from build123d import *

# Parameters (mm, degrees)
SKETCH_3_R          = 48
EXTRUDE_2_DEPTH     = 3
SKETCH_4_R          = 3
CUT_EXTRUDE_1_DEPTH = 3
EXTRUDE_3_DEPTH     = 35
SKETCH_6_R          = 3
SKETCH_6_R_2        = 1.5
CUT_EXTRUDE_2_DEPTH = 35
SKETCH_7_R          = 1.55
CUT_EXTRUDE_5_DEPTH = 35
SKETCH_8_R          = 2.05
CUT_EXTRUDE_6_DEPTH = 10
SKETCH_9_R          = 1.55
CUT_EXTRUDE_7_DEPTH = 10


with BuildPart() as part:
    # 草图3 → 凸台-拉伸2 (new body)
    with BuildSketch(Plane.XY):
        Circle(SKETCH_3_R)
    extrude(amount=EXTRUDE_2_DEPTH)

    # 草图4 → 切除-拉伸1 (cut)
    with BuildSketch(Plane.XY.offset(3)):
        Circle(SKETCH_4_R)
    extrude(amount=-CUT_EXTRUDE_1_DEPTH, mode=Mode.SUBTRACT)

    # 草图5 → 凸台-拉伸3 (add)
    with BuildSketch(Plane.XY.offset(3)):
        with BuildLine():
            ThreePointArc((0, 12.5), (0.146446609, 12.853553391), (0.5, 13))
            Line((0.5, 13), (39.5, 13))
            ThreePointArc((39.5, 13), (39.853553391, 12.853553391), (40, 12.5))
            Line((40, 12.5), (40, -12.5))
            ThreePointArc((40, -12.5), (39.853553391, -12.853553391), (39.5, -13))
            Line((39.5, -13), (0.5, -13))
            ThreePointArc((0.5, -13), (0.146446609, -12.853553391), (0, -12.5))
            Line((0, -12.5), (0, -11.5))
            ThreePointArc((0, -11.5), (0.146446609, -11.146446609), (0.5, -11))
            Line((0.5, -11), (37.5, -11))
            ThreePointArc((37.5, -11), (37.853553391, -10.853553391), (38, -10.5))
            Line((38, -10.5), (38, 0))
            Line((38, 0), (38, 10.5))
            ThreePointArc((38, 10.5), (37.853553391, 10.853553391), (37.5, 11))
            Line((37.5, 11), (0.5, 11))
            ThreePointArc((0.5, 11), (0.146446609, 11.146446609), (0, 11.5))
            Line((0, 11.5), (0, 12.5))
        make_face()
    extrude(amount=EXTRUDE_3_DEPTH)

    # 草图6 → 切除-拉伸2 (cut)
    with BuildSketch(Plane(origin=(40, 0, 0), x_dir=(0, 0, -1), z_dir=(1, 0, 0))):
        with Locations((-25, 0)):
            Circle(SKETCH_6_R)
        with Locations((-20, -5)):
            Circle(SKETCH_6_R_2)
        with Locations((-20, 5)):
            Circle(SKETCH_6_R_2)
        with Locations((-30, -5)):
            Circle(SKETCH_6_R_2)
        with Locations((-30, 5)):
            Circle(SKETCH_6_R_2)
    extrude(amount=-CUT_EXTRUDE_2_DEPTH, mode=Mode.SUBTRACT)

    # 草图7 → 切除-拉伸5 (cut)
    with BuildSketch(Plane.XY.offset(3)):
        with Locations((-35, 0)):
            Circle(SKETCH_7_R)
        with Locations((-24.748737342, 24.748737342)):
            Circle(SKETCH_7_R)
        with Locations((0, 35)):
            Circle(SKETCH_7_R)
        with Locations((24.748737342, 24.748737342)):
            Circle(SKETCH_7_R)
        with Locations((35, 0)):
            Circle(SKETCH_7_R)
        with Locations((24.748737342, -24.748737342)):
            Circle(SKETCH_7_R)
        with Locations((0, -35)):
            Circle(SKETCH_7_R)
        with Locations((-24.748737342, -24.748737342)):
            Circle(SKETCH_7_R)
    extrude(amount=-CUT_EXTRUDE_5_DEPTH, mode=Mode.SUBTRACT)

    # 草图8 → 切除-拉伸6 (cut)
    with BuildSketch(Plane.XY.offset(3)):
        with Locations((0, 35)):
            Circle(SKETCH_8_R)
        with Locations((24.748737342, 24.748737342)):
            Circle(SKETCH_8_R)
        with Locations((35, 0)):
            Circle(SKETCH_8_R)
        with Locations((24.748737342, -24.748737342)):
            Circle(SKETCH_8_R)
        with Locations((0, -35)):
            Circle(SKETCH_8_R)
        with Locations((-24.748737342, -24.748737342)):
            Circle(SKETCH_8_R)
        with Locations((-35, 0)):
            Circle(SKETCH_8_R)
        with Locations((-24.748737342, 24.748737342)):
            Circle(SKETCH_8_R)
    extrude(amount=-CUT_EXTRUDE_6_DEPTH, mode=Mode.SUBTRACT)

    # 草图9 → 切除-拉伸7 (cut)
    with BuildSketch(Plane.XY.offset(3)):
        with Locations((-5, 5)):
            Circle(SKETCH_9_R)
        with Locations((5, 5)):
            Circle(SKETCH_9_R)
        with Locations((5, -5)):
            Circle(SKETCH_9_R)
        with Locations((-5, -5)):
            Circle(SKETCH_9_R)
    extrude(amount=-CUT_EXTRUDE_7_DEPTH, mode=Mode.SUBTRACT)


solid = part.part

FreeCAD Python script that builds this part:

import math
import FreeCAD as App
import Part
import Sketcher
Q = App.Units.Quantity

doc = App.newDocument("Part")
params = doc.addObject("Spreadsheet::Sheet", "Params")
for row, (alias, value) in enumerate([
    ("sketch1_diameter", "96 mm"),
    ("pad1_length", "3 mm"),
    ("sketch2_diameter", "6 mm"),
    ("pocket1_length", "3 mm"),
    ("sketch3_radius", "0.5 mm"),
    ("sketch3_width", "37 mm"),
    ("sketch3_width2", "39 mm"),
    ("sketch3_height", "1 mm"),
    ("sketch3_height2", "21 mm"),
    ("pad2_length", "35 mm"),
    ("sketch4_diameter", "6 mm"),
    ("sketch4_diameter2", "3 mm"),
    ("pocket2_length", "35 mm"),
    ("sketch5_diameter", "3.1 mm"),
    ("pocket3_length", "35 mm"),
    ("sketch6_diameter", "4.1 mm"),
    ("pocket4_length", "10 mm"),
    ("sketch7_diameter", "3.1 mm"),
    ("pocket5_length", "10 mm"),
], start=1):
    params.set(f"A{row}", alias)
    params.set(f"B{row}", "=" + value)
    params.setAlias(f"B{row}", alias)

body = doc.addObject("PartDesign::Body", "Body")

# Sketch on XY plane
sketch1 = body.newObject("Sketcher::SketchObject", "Sketch")
sketch1.AttachmentSupport = (doc.getObject("XY_Plane"), [""])
sketch1.MapMode = "FlatFace"
sketch1.addGeometry(Part.Circle(App.Vector(0, 0, 0), App.Vector(0, 0, 1), 48), False)
sketch1.addConstraint(Sketcher.Constraint("Coincident", 0, 3, -1, 1))
sketch1.addConstraint(Sketcher.Constraint("Diameter", 0, Q("96 mm")))
sketch1.setExpression("Constraints[1]", "Params.sketch1_diameter")
pad1 = body.newObject("PartDesign::Pad", "Pad")
pad1.Profile = sketch1
pad1.setExpression("Length", "Params.pad1_length")

# Sketch on XY plane
sketch2 = body.newObject("Sketcher::SketchObject", "Sketch001")
sketch2.AttachmentSupport = (doc.getObject("XY_Plane"), [""])
sketch2.MapMode = "FlatFace"
sketch2.AttachmentOffset = App.Placement(App.Vector(0, 0, 3), App.Rotation())
sketch2.addGeometry(Part.Circle(App.Vector(0, 0, 0), App.Vector(0, 0, 1), 3), False)
sketch2.addConstraint(Sketcher.Constraint("Coincident", 0, 3, -1, 1))
sketch2.addConstraint(Sketcher.Constraint("Diameter", 0, Q("6 mm")))
sketch2.setExpression("Constraints[1]", "Params.sketch2_diameter")
pocket1 = body.newObject("PartDesign::Pocket", "Pocket")
pocket1.Profile = sketch2
pocket1.setExpression("Length", "Params.pocket1_length")

# Sketch on XY plane
sketch3 = body.newObject("Sketcher::SketchObject", "Sketch002")
sketch3.AttachmentSupport = (doc.getObject("XY_Plane"), [""])
sketch3.MapMode = "FlatFace"
sketch3.AttachmentOffset = App.Placement(App.Vector(0, 0, 3), App.Rotation())
sketch3.addGeometry(Part.ArcOfCircle(Part.Circle(App.Vector(0.5, 12.5, 0), App.Vector(0, 0, 1), 0.5), math.radians(90), math.radians(180)), False)
sketch3.addGeometry(Part.LineSegment(App.Vector(0, 12.5, 0), App.Vector(0, 11.5, 0)), False)
sketch3.addGeometry(Part.ArcOfCircle(Part.Circle(App.Vector(0.5, 11.5, 0), App.Vector(0, 0, 1), 0.5), math.radians(180), math.radians(270)), False)
sketch3.addGeometry(Part.LineSegment(App.Vector(0.5, 11, 0), App.Vector(37.5, 11, 0)), False)
sketch3.addGeometry(Part.ArcOfCircle(Part.Circle(App.Vector(37.5, 10.5, 0), App.Vector(0, 0, 1), 0.5), math.radians(0), math.radians(90)), False)
sketch3.addGeometry(Part.LineSegment(App.Vector(38, 10.5, 0), App.Vector(38, -10.5, 0)), False)
sketch3.addGeometry(Part.ArcOfCircle(Part.Circle(App.Vector(37.5, -10.5, 0), App.Vector(0, 0, 1), 0.5), math.radians(-90), math.radians(0)), False)
sketch3.addGeometry(Part.LineSegment(App.Vector(37.5, -11, 0), App.Vector(0.5, -11, 0)), False)
sketch3.addGeometry(Part.ArcOfCircle(Part.Circle(App.Vector(0.5, -11.5, 0), App.Vector(0, 0, 1), 0.5), math.radians(90), math.radians(180)), False)
sketch3.addGeometry(Part.LineSegment(App.Vector(0, -11.5, 0), App.Vector(0, -12.5, 0)), False)
sketch3.addGeometry(Part.ArcOfCircle(Part.Circle(App.Vector(0.5, -12.5, 0), App.Vector(0, 0, 1), 0.5), math.radians(180), math.radians(270)), False)
sketch3.addGeometry(Part.LineSegment(App.Vector(0.5, -13, 0), App.Vector(39.5, -13, 0)), False)
sketch3.addGeometry(Part.ArcOfCircle(Part.Circle(App.Vector(39.5, -12.5, 0), App.Vector(0, 0, 1), 0.5), math.radians(-90), math.radians(0)), False)
sketch3.addGeometry(Part.LineSegment(App.Vector(40, -12.5, 0), App.Vector(40, 12.5, 0)), False)
sketch3.addGeometry(Part.ArcOfCircle(Part.Circle(App.Vector(39.5, 12.5, 0), App.Vector(0, 0, 1), 0.5), math.radians(0), math.radians(90)), False)
sketch3.addGeometry(Part.LineSegment(App.Vector(39.5, 13, 0), App.Vector(0.5, 13, 0)), False)
sketch3.addConstraint(Sketcher.Constraint("Tangent", 0, 2, 1, 1))
sketch3.addConstraint(Sketcher.Constraint("Tangent", 1, 2, 2, 1))
sketch3.addConstraint(Sketcher.Constraint("Tangent", 2, 2, 3, 1))
sketch3.addConstraint(Sketcher.Constraint("Tangent", 3, 2, 4, 2))
sketch3.addConstraint(Sketcher.Constraint("Tangent", 4, 1, 5, 1))
sketch3.addConstraint(Sketcher.Constraint("Tangent", 5, 2, 6, 2))
sketch3.addConstraint(Sketcher.Constraint("Tangent", 6, 1, 7, 1))
sketch3.addConstraint(Sketcher.Constraint("Tangent", 7, 2, 8, 1))
sketch3.addConstraint(Sketcher.Constraint("Tangent", 8, 2, 9, 1))
sketch3.addConstraint(Sketcher.Constraint("Tangent", 9, 2, 10, 1))
sketch3.addConstraint(Sketcher.Constraint("Tangent", 10, 2, 11, 1))
sketch3.addConstraint(Sketcher.Constraint("Tangent", 11, 2, 12, 1))
sketch3.addConstraint(Sketcher.Constraint("Tangent", 12, 2, 13, 1))
sketch3.addConstraint(Sketcher.Constraint("Tangent", 13, 2, 14, 1))
sketch3.addConstraint(Sketcher.Constraint("Tangent", 14, 2, 15, 1))
sketch3.addConstraint(Sketcher.Constraint("Tangent", 15, 2, 0, 1))
sketch3.addConstraint(Sketcher.Constraint("Vertical", 1))
sketch3.addConstraint(Sketcher.Constraint("Horizontal", 3))
sketch3.addConstraint(Sketcher.Constraint("Vertical", 5))
sketch3.addConstraint(Sketcher.Constraint("Horizontal", 7))
sketch3.addConstraint(Sketcher.Constraint("Vertical", 9))
sketch3.addConstraint(Sketcher.Constraint("Horizontal", 11))
sketch3.addConstraint(Sketcher.Constraint("Vertical", 13))
sketch3.addConstraint(Sketcher.Constraint("Horizontal", 15))
sketch3.addConstraint(Sketcher.Constraint("Equal", 0, 2))
sketch3.addConstraint(Sketcher.Constraint("Equal", 2, 4))
sketch3.addConstraint(Sketcher.Constraint("Equal", 4, 6))
sketch3.addConstraint(Sketcher.Constraint("Equal", 6, 8))
sketch3.addConstraint(Sketcher.Constraint("Equal", 8, 10))
sketch3.addConstraint(Sketcher.Constraint("Equal", 10, 12))
sketch3.addConstraint(Sketcher.Constraint("Equal", 12, 14))
sketch3.addConstraint(Sketcher.Constraint("Symmetric", 1, 2, 8, 2, -1, 1))
sketch3.addConstraint(Sketcher.Constraint("Symmetric", 0, 3, 10, 3, -1))
sketch3.addConstraint(Sketcher.Constraint("Radius", 0, Q("0.5 mm")))
sketch3.addConstraint(Sketcher.Constraint("DistanceX", 3, 1, 3, 2, Q("37 mm")))
sketch3.addConstraint(Sketcher.Constraint("DistanceX", 11, 1, 11, 2, Q("39 mm")))
sketch3.addConstraint(Sketcher.Constraint("DistanceY", 1, 2, 1, 1, Q("1 mm")))
sketch3.addConstraint(Sketcher.Constraint("DistanceY", 5, 2, 5, 1, Q("21 mm")))
sketch3.setExpression("Constraints[33]", "Params.sketch3_radius")
sketch3.setExpression("Constraints[34]", "Params.sketch3_width")
sketch3.setExpression("Constraints[35]", "Params.sketch3_width2")
sketch3.setExpression("Constraints[36]", "Params.sketch3_height")
sketch3.setExpression("Constraints[37]", "Params.sketch3_height2")
pad2 = body.newObject("PartDesign::Pad", "Pad001")
pad2.Profile = sketch3
pad2.setExpression("Length", "Params.pad2_length")

# Sketch on YZ plane
sketch4 = body.newObject("Sketcher::SketchObject", "Sketch003")
sketch4.AttachmentSupport = (doc.getObject("YZ_Plane"), [""])
sketch4.MapMode = "FlatFace"
sketch4.AttachmentOffset = App.Placement(App.Vector(0, 0, 40), App.Rotation())
sketch4.addGeometry(Part.Circle(App.Vector(0, 25, 0), App.Vector(0, 0, 1), 3), False)
sketch4.addGeometry(Part.Circle(App.Vector(-5, 20, 0), App.Vector(0, 0, 1), 1.5), False)
sketch4.addGeometry(Part.Circle(App.Vector(5, 20, 0), App.Vector(0, 0, 1), 1.5), False)
sketch4.addGeometry(Part.Circle(App.Vector(-5, 30, 0), App.Vector(0, 0, 1), 1.5), False)
sketch4.addGeometry(Part.Circle(App.Vector(5, 30, 0), App.Vector(0, 0, 1), 1.5), False)
sketch4.addConstraint(Sketcher.Constraint("Equal", 1, 2))
sketch4.addConstraint(Sketcher.Constraint("Equal", 2, 3))
sketch4.addConstraint(Sketcher.Constraint("Equal", 3, 4))
sketch4.addConstraint(Sketcher.Constraint("Symmetric", 1, 3, 2, 3, -2))
sketch4.addConstraint(Sketcher.Constraint("Symmetric", 3, 3, 4, 3, -2))
sketch4.addConstraint(Sketcher.Constraint("PointOnObject", 0, 3, -2))
sketch4.addConstraint(Sketcher.Constraint("Vertical", 1, 3, 3, 3))
sketch4.addConstraint(Sketcher.Constraint("Diameter", 0, Q("6 mm")))
sketch4.addConstraint(Sketcher.Constraint("Diameter", 1, Q("3 mm")))
sketch4.addConstraint(Sketcher.Constraint("DistanceY", -1, 1, 0, 3, Q("25 mm")))
sketch4.addConstraint(Sketcher.Constraint("DistanceX", 1, 3, -1, 1, Q("5 mm")))
sketch4.addConstraint(Sketcher.Constraint("DistanceY", -1, 1, 1, 3, Q("20 mm")))
sketch4.addConstraint(Sketcher.Constraint("DistanceY", -1, 1, 3, 3, Q("30 mm")))
sketch4.setExpression("Constraints[7]", "Params.sketch4_diameter")
sketch4.setExpression("Constraints[8]", "Params.sketch4_diameter2")
pocket2 = body.newObject("PartDesign::Pocket", "Pocket001")
pocket2.Profile = sketch4
pocket2.setExpression("Length", "Params.pocket2_length")

# Sketch on XY plane
sketch5 = body.newObject("Sketcher::SketchObject", "Sketch004")
sketch5.AttachmentSupport = (doc.getObject("XY_Plane"), [""])
sketch5.MapMode = "FlatFace"
sketch5.AttachmentOffset = App.Placement(App.Vector(0, 0, 3), App.Rotation())
sketch5.addGeometry(Part.Circle(App.Vector(-35, 0, 0), App.Vector(0, 0, 1), 1.6), False)
sketch5.addGeometry(Part.Circle(App.Vector(-24.7, 24.7, 0), App.Vector(0, 0, 1), 1.6), False)
sketch5.addGeometry(Part.Circle(App.Vector(0, 35, 0), App.Vector(0, 0, 1), 1.6), False)
sketch5.addGeometry(Part.Circle(App.Vector(24.7, 24.7, 0), App.Vector(0, 0, 1), 1.6), False)
sketch5.addGeometry(Part.Circle(App.Vector(35, 0, 0), App.Vector(0, 0, 1), 1.6), False)
sketch5.addGeometry(Part.Circle(App.Vector(24.7, -24.7, 0), App.Vector(0, 0, 1), 1.6), False)
sketch5.addGeometry(Part.Circle(App.Vector(0, -35, 0), App.Vector(0, 0, 1), 1.6), False)
sketch5.addGeometry(Part.Circle(App.Vector(-24.7, -24.7, 0), App.Vector(0, 0, 1), 1.6), False)
sketch5.addConstraint(Sketcher.Constraint("Equal", 0, 1))
sketch5.addConstraint(Sketcher.Constraint("Equal", 1, 2))
sketch5.addConstraint(Sketcher.Constraint("Equal", 2, 3))
sketch5.addConstraint(Sketcher.Constraint("Equal", 3, 4))
sketch5.addConstraint(Sketcher.Constraint("Equal", 4, 5))
sketch5.addConstraint(Sketcher.Constraint("Equal", 5, 6))
sketch5.addConstraint(Sketcher.Constraint("Equal", 6, 7))
sketch5.addConstraint(Sketcher.Constraint("Symmetric", 0, 3, 4, 3, -1, 1))
sketch5.addConstraint(Sketcher.Constraint("Symmetric", 1, 3, 5, 3, -1, 1))
sketch5.addConstraint(Sketcher.Constraint("Symmetric", 2, 3, 6, 3, -1, 1))
sketch5.addConstraint(Sketcher.Constraint("Symmetric", 3, 3, 7, 3, -1, 1))
sketch5.addConstraint(Sketcher.Constraint("Symmetric", 1, 3, 3, 3, -2))
sketch5.addConstraint(Sketcher.Constraint("PointOnObject", 0, 3, -1))
sketch5.addConstraint(Sketcher.Constraint("PointOnObject", 2, 3, -2))
sketch5.addConstraint(Sketcher.Constraint("Diameter", 0, Q("3.1 mm")))
sketch5.addConstraint(Sketcher.Constraint("DistanceX", 0, 3, -1, 1, Q("35 mm")))
sketch5.addConstraint(Sketcher.Constraint("DistanceY", -1, 1, 2, 3, Q("35 mm")))
sketch5.addConstraint(Sketcher.Constraint("DistanceX", 1, 3, -1, 1, Q("24.748737 mm")))
sketch5.addConstraint(Sketcher.Constraint("DistanceY", -1, 1, 1, 3, Q("24.748737 mm")))
sketch5.setExpression("Constraints[14]", "Params.sketch5_diameter")
pocket3 = body.newObject("PartDesign::Pocket", "Pocket002")
pocket3.Profile = sketch5
pocket3.setExpression("Length", "Params.pocket3_length")

# Sketch on XY plane
sketch6 = body.newObject("Sketcher::SketchObject", "Sketch005")
sketch6.AttachmentSupport = (doc.getObject("XY_Plane"), [""])
sketch6.MapMode = "FlatFace"
sketch6.AttachmentOffset = App.Placement(App.Vector(0, 0, 3), App.Rotation())
sketch6.addGeometry(Part.Circle(App.Vector(0, 35, 0), App.Vector(0, 0, 1), 2), False)
sketch6.addGeometry(Part.Circle(App.Vector(24.7, 24.7, 0), App.Vector(0, 0, 1), 2), False)
sketch6.addGeometry(Part.Circle(App.Vector(35, 0, 0), App.Vector(0, 0, 1), 2), False)
sketch6.addGeometry(Part.Circle(App.Vector(24.7, -24.7, 0), App.Vector(0, 0, 1), 2), False)
sketch6.addGeometry(Part.Circle(App.Vector(0, -35, 0), App.Vector(0, 0, 1), 2), False)
sketch6.addGeometry(Part.Circle(App.Vector(-24.7, -24.7, 0), App.Vector(0, 0, 1), 2), False)
sketch6.addGeometry(Part.Circle(App.Vector(-35, 0, 0), App.Vector(0, 0, 1), 2), False)
sketch6.addGeometry(Part.Circle(App.Vector(-24.7, 24.7, 0), App.Vector(0, 0, 1), 2), False)
sketch6.addConstraint(Sketcher.Constraint("Equal", 0, 1))
sketch6.addConstraint(Sketcher.Constraint("Equal", 1, 2))
sketch6.addConstraint(Sketcher.Constraint("Equal", 2, 3))
sketch6.addConstraint(Sketcher.Constraint("Equal", 3, 4))
sketch6.addConstraint(Sketcher.Constraint("Equal", 4, 5))
sketch6.addConstraint(Sketcher.Constraint("Equal", 5, 6))
sketch6.addConstraint(Sketcher.Constraint("Equal", 6, 7))
sketch6.addConstraint(Sketcher.Constraint("Symmetric", 0, 3, 4, 3, -1, 1))
sketch6.addConstraint(Sketcher.Constraint("Symmetric", 1, 3, 5, 3, -1, 1))
sketch6.addConstraint(Sketcher.Constraint("Symmetric", 2, 3, 6, 3, -1, 1))
sketch6.addConstraint(Sketcher.Constraint("Symmetric", 3, 3, 7, 3, -1, 1))
sketch6.addConstraint(Sketcher.Constraint("Symmetric", 3, 3, 5, 3, -2))
sketch6.addConstraint(Sketcher.Constraint("PointOnObject", 0, 3, -2))
sketch6.addConstraint(Sketcher.Constraint("PointOnObject", 2, 3, -1))
sketch6.addConstraint(Sketcher.Constraint("Diameter", 0, Q("4.1 mm")))
sketch6.addConstraint(Sketcher.Constraint("DistanceY", -1, 1, 0, 3, Q("35 mm")))
sketch6.addConstraint(Sketcher.Constraint("DistanceX", -1, 1, 2, 3, Q("35 mm")))
sketch6.addConstraint(Sketcher.Constraint("DistanceX", -1, 1, 1, 3, Q("24.748737 mm")))
sketch6.addConstraint(Sketcher.Constraint("DistanceY", -1, 1, 1, 3, Q("24.748737 mm")))
sketch6.setExpression("Constraints[14]", "Params.sketch6_diameter")
pocket4 = body.newObject("PartDesign::Pocket", "Pocket003")
pocket4.Profile = sketch6
pocket4.setExpression("Length", "Params.pocket4_length")

# Sketch on XY plane
sketch7 = body.newObject("Sketcher::SketchObject", "Sketch006")
sketch7.AttachmentSupport = (doc.getObject("XY_Plane"), [""])
sketch7.MapMode = "FlatFace"
sketch7.AttachmentOffset = App.Placement(App.Vector(0, 0, 3), App.Rotation())
sketch7.addGeometry(Part.Circle(App.Vector(-5, 5, 0), App.Vector(0, 0, 1), 1.6), False)
sketch7.addGeometry(Part.Circle(App.Vector(5, 5, 0), App.Vector(0, 0, 1), 1.6), False)
sketch7.addGeometry(Part.Circle(App.Vector(5, -5, 0), App.Vector(0, 0, 1), 1.6), False)
sketch7.addGeometry(Part.Circle(App.Vector(-5, -5, 0), App.Vector(0, 0, 1), 1.6), False)
sketch7.addConstraint(Sketcher.Constraint("Equal", 0, 1))
sketch7.addConstraint(Sketcher.Constraint("Equal", 1, 2))
sketch7.addConstraint(Sketcher.Constraint("Equal", 2, 3))
sketch7.addConstraint(Sketcher.Constraint("Symmetric", 0, 3, 2, 3, -1, 1))
sketch7.addConstraint(Sketcher.Constraint("Symmetric", 1, 3, 3, 3, -1, 1))
sketch7.addConstraint(Sketcher.Constraint("Symmetric", 0, 3, 1, 3, -2))
sketch7.addConstraint(Sketcher.Constraint("Diameter", 0, Q("3.1 mm")))
sketch7.addConstraint(Sketcher.Constraint("DistanceX", 0, 3, -1, 1, Q("5 mm")))
sketch7.addConstraint(Sketcher.Constraint("DistanceY", -1, 1, 0, 3, Q("5 mm")))
sketch7.setExpression("Constraints[6]", "Params.sketch7_diameter")
pocket5 = body.newObject("PartDesign::Pocket", "Pocket004")
pocket5.Profile = sketch7
pocket5.setExpression("Length", "Params.pocket5_length")

doc.recompute()
